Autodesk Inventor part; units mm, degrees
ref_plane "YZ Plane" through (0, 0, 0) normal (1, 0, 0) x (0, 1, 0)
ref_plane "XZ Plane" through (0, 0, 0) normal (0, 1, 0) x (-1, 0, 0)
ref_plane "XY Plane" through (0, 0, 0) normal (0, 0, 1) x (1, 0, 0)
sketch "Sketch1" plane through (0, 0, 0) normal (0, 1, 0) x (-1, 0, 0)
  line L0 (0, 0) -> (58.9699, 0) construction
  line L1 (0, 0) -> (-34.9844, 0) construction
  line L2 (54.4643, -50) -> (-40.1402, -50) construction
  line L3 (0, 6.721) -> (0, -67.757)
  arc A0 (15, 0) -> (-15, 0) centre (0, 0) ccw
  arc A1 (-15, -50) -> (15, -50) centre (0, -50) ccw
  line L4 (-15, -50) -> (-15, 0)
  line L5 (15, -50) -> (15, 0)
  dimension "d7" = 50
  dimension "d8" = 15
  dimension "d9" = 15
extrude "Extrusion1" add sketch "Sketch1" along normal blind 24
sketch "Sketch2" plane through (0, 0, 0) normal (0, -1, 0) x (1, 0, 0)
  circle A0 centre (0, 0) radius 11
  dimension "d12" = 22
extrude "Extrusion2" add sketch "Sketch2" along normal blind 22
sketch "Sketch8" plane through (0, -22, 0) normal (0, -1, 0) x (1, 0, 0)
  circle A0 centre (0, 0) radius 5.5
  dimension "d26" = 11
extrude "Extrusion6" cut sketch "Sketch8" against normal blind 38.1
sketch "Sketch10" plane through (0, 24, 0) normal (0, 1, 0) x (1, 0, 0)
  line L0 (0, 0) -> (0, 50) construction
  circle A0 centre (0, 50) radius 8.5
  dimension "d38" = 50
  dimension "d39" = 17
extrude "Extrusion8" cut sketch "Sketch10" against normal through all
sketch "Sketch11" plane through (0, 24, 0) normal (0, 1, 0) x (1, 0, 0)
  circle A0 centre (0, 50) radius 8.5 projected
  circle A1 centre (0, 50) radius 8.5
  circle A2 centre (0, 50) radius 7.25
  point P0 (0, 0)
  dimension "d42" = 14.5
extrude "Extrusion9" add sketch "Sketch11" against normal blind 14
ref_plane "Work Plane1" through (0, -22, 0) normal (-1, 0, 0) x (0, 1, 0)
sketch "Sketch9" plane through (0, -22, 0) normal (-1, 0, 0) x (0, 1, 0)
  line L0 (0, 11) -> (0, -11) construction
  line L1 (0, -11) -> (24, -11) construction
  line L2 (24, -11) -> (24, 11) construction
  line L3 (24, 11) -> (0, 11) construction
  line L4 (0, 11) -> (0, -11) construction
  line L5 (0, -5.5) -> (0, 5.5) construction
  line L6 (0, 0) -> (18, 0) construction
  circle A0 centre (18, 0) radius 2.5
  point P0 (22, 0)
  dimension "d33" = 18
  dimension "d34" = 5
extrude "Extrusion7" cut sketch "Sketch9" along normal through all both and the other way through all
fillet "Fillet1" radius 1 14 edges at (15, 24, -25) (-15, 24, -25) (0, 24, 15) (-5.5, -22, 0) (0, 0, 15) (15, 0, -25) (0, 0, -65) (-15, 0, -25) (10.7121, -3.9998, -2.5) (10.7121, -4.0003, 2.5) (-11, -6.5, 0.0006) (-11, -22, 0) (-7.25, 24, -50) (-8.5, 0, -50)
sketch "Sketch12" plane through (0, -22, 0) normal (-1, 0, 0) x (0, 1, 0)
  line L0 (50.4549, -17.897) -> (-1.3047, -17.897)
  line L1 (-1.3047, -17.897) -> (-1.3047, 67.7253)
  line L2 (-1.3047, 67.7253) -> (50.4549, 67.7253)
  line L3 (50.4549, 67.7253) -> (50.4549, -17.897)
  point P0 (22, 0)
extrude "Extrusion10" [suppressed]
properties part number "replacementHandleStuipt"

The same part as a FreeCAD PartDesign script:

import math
import FreeCAD as App
import Part
import Sketcher
from FreeCAD import Vector
Q = App.Units.Quantity


def edges_at(feature, points):
    """Names of the edges that pass closest to the given points."""
    edges = feature.Shape.Edges
    near = lambda p: min(range(len(edges)), key=lambda i: edges[i].distToShape(Part.Vertex(*p))[0])
    return sorted({f"Edge{near(p) + 1}" for p in points})

doc = App.newDocument("Part")
body = doc.addObject("PartDesign::Body", "Body")

# Sketch on XZ plane
sketch1 = body.newObject("Sketcher::SketchObject", "Sketch")
sketch1.AttachmentSupport = (doc.getObject("XZ_Plane"), [""])
sketch1.MapMode = "FlatFace"
sketch1.addGeometry([
    Part.LineSegment(Vector(-15, -50, 0), Vector(-15, 0, 0)),
    Part.ArcOfCircle(Part.Circle(Vector(0, 0, 0), Vector(0, 0, 1), 15), math.radians(0), math.radians(180)),
    Part.LineSegment(Vector(15, 0, 0), Vector(15, -50, 0)),
    Part.ArcOfCircle(Part.Circle(Vector(0, -50, 0), Vector(0, 0, 1), 15), math.radians(180), math.radians(360)),
], False)
sketch1.addConstraint([
    Sketcher.Constraint("Tangent", 0, 2, 1, 2),
    Sketcher.Constraint("Tangent", 1, 1, 2, 1),
    Sketcher.Constraint("Tangent", 2, 2, 3, 2),
    Sketcher.Constraint("Tangent", 3, 1, 0, 1),
    Sketcher.Constraint("Vertical", 0),
    Sketcher.Constraint("Vertical", 2),
    Sketcher.Constraint("Coincident", 1, 3, -1, 1),
    Sketcher.Constraint("Radius", 1, Q("15 mm")),
    Sketcher.Constraint("DistanceY", 0, 1, 0, 2, Q("50 mm")),
])
pad1 = body.newObject("PartDesign::Pad", "Pad")
pad1.Profile = sketch1
pad1.Length = 24
pad1.Reversed = True

# Sketch on XZ plane
sketch2 = body.newObject("Sketcher::SketchObject", "Sketch001")
sketch2.AttachmentSupport = (doc.getObject("XZ_Plane"), [""])
sketch2.MapMode = "FlatFace"
sketch2.addGeometry(Part.Circle(Vector(0, 0, 0), Vector(0, 0, 1), 11), False)
sketch2.addConstraint([
    Sketcher.Constraint("Coincident", 0, 3, -1, 1),
    Sketcher.Constraint("Diameter", 0, Q("22 mm")),
])
pad2 = body.newObject("PartDesign::Pad", "Pad001")
pad2.Profile = sketch2
pad2.Length = 22

# Sketch on XZ plane
sketch3 = body.newObject("Sketcher::SketchObject", "Sketch002")
sketch3.AttachmentSupport = (doc.getObject("XZ_Plane"), [""])
sketch3.MapMode = "FlatFace"
sketch3.AttachmentOffset = App.Placement(Vector(0, 0, 22), App.Rotation())
sketch3.addGeometry(Part.Circle(Vector(0, 0, 0), Vector(0, 0, 1), 6), False)
sketch3.addConstraint([
    Sketcher.Constraint("Coincident", 0, 3, -1, 1),
    Sketcher.Constraint("Diameter", 0, Q("11 mm")),
])
pocket1 = body.newObject("PartDesign::Pocket", "Pocket")
pocket1.Profile = sketch3
pocket1.Length = 38.1

# Sketch on XZ plane
sketch4 = body.newObject("Sketcher::SketchObject", "Sketch003")
sketch4.AttachmentSupport = (doc.getObject("XZ_Plane"), [""])
sketch4.MapMode = "FlatFace"
sketch4.AttachmentOffset = App.Placement(Vector(0, 0, -24), App.Rotation())
sketch4.addGeometry(Part.Circle(Vector(0, -50, 0), Vector(0, 0, 1), 8), False)
sketch4.addConstraint([
    Sketcher.Constraint("PointOnObject", 0, 3, -2),
    Sketcher.Constraint("Diameter", 0, Q("17 mm")),
    Sketcher.Constraint("DistanceY", 0, 3, -1, 1, Q("50 mm")),
])
pocket2 = body.newObject("PartDesign::Pocket", "Pocket001")
pocket2.Profile = sketch4
pocket2.Type = "ThroughAll"
pocket2.Reversed = True

# Sketch on XZ plane
sketch5 = body.newObject("Sketcher::SketchObject", "Sketch004")
sketch5.AttachmentSupport = (doc.getObject("XZ_Plane"), [""])
sketch5.MapMode = "FlatFace"
sketch5.AttachmentOffset = App.Placement(Vector(0, 0, -24), App.Rotation())
sketch5.addGeometry([
    Part.Circle(Vector(0, -50, 0), Vector(0, 0, 1), 8),
    Part.Circle(Vector(0, -50, 0), Vector(0, 0, 1), 7),
], False)
sketch5.addConstraint([
    Sketcher.Constraint("Coincident", 1, 3, 0, 3),
    Sketcher.Constraint("PointOnObject", 0, 3, -2),
    Sketcher.Constraint("Diameter", 1, Q("14.5 mm")),
    Sketcher.Constraint("Diameter", 0, Q("17 mm")),
    Sketcher.Constraint("DistanceY", 0, 3, -1, 1, Q("50 mm")),
])
pad3 = body.newObject("PartDesign::Pad", "Pad002")
pad3.Profile = sketch5
pad3.Length = 14

# Sketch on YZ plane
sketch6 = body.newObject("Sketcher::SketchObject", "Sketch005")
sketch6.AttachmentSupport = (doc.getObject("YZ_Plane"), [""])
sketch6.MapMode = "FlatFace"
sketch6.addGeometry(Part.Circle(Vector(-4, 0, 0), Vector(0, 0, 1), 2.5), False)
sketch6.addConstraint([
    Sketcher.Constraint("PointOnObject", 0, 3, -1),
    Sketcher.Constraint("Diameter", 0, Q("5 mm")),
    Sketcher.Constraint("DistanceX", 0, 3, -1, 1, Q("4 mm")),
])
pocket3 = body.newObject("PartDesign::Pocket", "Pocket002")
pocket3.Profile = sketch6
pocket3.Type = "ThroughAll"
pocket3.Midplane = True
doc.recompute()

fillet = body.newObject("PartDesign::Fillet", "Fillet")
fillet.Base = (pocket3, edges_at(pocket3, [
    (15, 24, -25),
    (-15, 24, -25),
    (0, 24, 15),
    (-5.5, -22, 0),
    (0, 0, 15),
    (15, 0, -25),
    (0, 0, -65),
    (-15, 0, -25),
    (10.712, -4, -2.5),
    (10.712, -4, 2.5),
    (-11, -6.5, 0.001),
    (-11, -22, 0),
    (-7.25, 24, -50),
    (-8.5, 0, -50),
]))
fillet.Radius = 1

doc.recompute()
